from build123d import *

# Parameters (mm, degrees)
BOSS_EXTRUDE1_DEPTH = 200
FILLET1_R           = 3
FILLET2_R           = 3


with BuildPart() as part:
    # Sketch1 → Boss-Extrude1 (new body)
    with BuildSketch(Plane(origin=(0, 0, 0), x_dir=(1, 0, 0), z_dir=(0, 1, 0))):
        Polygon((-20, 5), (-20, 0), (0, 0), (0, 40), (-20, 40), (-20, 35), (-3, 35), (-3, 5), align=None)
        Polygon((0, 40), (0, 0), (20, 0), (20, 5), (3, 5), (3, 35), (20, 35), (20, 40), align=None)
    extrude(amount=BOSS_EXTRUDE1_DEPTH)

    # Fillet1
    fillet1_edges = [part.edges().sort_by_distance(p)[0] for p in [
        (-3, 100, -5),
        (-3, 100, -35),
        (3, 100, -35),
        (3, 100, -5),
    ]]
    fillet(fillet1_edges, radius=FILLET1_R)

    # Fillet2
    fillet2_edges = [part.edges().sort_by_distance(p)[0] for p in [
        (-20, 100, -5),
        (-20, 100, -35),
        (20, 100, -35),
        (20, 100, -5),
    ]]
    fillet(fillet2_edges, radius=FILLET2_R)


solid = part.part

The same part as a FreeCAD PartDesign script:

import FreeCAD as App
import Part
import Sketcher
Q = App.Units.Quantity


def edges_at(feature, points):
    """Names of the edges that pass closest to the given points."""
    edges = feature.Shape.Edges
    near = lambda p: min(range(len(edges)), key=lambda i: edges[i].distToShape(Part.Vertex(*p))[0])
    return sorted({f"Edge{near(p) + 1}" for p in points})

doc = App.newDocument("Part")
body = doc.addObject("PartDesign::Body", "Body")

sketch1 = body.newObject("Sketcher::SketchObject", "Sketch")
sketch1.AttachmentSupport = (doc.getObject("XZ_Plane"), [""])
sketch1.MapMode = "FlatFace"
sketch1.addGeometry([
    Part.LineSegment(App.Vector(-20, -5, 0), App.Vector(-20, 0, 0)),
    Part.LineSegment(App.Vector(-20, 0, 0), App.Vector(20, 0, 0)),
    Part.LineSegment(App.Vector(20, 0, 0), App.Vector(20, -5, 0)),
    Part.LineSegment(App.Vector(20, -5, 0), App.Vector(3, -5, 0)),
    Part.LineSegment(App.Vector(3, -5, 0), App.Vector(3, -35, 0)),
    Part.LineSegment(App.Vector(3, -35, 0), App.Vector(20, -35, 0)),
    Part.LineSegment(App.Vector(20, -35, 0), App.Vector(20, -40, 0)),
    Part.LineSegment(App.Vector(20, -40, 0), App.Vector(-20, -40, 0)),
    Part.LineSegment(App.Vector(-20, -40, 0), App.Vector(-20, -35, 0)),
    Part.LineSegment(App.Vector(-20, -35, 0), App.Vector(-3, -35, 0)),
    Part.LineSegment(App.Vector(-3, -35, 0), App.Vector(-3, -5, 0)),
    Part.LineSegment(App.Vector(-3, -5, 0), App.Vector(-20, -5, 0)),
], False)
sketch1.addConstraint([
    Sketcher.Constraint("Coincident", 0, 2, 1, 1),
    Sketcher.Constraint("Coincident", 1, 2, 2, 1),
    Sketcher.Constraint("Coincident", 2, 2, 3, 1),
    Sketcher.Constraint("Coincident", 3, 2, 4, 1),
    Sketcher.Constraint("Coincident", 4, 2, 5, 1),
    Sketcher.Constraint("Coincident", 5, 2, 6, 1),
    Sketcher.Constraint("Coincident", 6, 2, 7, 1),
    Sketcher.Constraint("Coincident", 7, 2, 8, 1),
    Sketcher.Constraint("Coincident", 8, 2, 9, 1),
    Sketcher.Constraint("Coincident", 9, 2, 10, 1),
    Sketcher.Constraint("Coincident", 10, 2, 11, 1),
    Sketcher.Constraint("Coincident", 11, 2, 0, 1),
    Sketcher.Constraint("Vertical", 0),
    Sketcher.Constraint("Horizontal", 1),
    Sketcher.Constraint("Vertical", 2),
    Sketcher.Constraint("Horizontal", 3),
    Sketcher.Constraint("Vertical", 4),
    Sketcher.Constraint("Horizontal", 5),
    Sketcher.Constraint("Vertical", 6),
    Sketcher.Constraint("Horizontal", 7),
    Sketcher.Constraint("Vertical", 8),
    Sketcher.Constraint("Horizontal", 9),
    Sketcher.Constraint("Vertical", 10),
    Sketcher.Constraint("Horizontal", 11),
    Sketcher.Constraint("Symmetric", 0, 2, 1, 2, -1, 1),
    Sketcher.Constraint("Symmetric", 5, 2, 8, 2, -2),
    Sketcher.Constraint("Symmetric", 3, 2, 10, 2, -2),
    Sketcher.Constraint("Vertical", 2, 2, 5, 2),
    Sketcher.Constraint("Equal", 2, 6),
    Sketcher.Constraint("DistanceX", 1, 1, 1, 2, Q("40 mm")),
    Sketcher.Constraint("DistanceX", 3, 2, 3, 1, Q("17 mm")),
    Sketcher.Constraint("DistanceY", 0, 1, 0, 2, Q("5 mm")),
    Sketcher.Constraint("DistanceY", 4, 2, 4, 1, Q("30 mm")),
])
pad1 = body.newObject("PartDesign::Pad", "Pad")
pad1.Profile = sketch1
pad1.Length = 200
pad1.Reversed = True
doc.recompute()

fillet = body.newObject("PartDesign::Fillet", "Fillet")
fillet.Base = (pad1, edges_at(pad1, [
    (-3, 100, -5),
    (-3, 100, -35),
    (3, 100, -35),
    (3, 100, -5),
]))
fillet.Radius = 3
doc.recompute()

fillet2 = body.newObject("PartDesign::Fillet", "Fillet001")
fillet2.Base = (fillet, edges_at(fillet, [
    (-20, 100, -5),
    (-20, 100, -35),
    (20, 100, -35),
    (20, 100, -5),
]))
fillet2.Radius = 3

doc.recompute()
